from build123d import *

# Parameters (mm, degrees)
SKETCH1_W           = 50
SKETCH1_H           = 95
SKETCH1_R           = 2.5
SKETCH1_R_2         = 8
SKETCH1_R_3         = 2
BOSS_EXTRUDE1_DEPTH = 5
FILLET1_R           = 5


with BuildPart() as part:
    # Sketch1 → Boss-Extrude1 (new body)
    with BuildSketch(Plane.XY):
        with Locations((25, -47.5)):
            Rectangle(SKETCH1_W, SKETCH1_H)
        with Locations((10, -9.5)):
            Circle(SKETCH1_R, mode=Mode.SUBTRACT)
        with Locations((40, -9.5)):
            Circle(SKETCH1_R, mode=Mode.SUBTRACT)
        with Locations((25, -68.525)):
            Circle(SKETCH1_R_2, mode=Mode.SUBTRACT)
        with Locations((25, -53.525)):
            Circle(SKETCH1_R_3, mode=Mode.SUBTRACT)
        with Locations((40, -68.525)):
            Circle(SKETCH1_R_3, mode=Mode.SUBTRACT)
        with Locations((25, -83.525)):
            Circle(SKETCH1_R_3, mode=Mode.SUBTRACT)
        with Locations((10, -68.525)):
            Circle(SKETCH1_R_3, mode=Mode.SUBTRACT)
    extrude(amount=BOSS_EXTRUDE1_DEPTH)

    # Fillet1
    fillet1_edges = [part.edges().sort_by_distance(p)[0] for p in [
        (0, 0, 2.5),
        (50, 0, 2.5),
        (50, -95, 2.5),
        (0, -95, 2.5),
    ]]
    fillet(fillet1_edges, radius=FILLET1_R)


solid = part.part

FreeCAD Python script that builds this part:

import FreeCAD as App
import Part
import Sketcher


def edges_at(feature, points):
    """Names of the edges that pass closest to the given points."""
    edges = feature.Shape.Edges
    near = lambda p: min(range(len(edges)), key=lambda i: edges[i].distToShape(Part.Vertex(*p))[0])
    return sorted({f"Edge{near(p) + 1}" for p in points})


def add_polygon(sketch, points):
    """Adds a closed chain of lines whose ends are joined by coincident constraints."""
    first, n = sketch.GeometryCount, len(points)
    for a, b in zip(points, points[1:] + points[:1]):
        sketch.addGeometry(Part.LineSegment(App.Vector(*a, 0), App.Vector(*b, 0)), False)
    for i in range(n):
        sketch.addConstraint(Sketcher.Constraint("Coincident", first + i, 2, first + (i + 1) % n, 1))

doc = App.newDocument("Part")
params = doc.addObject("Spreadsheet::Sheet", "Params")
for row, (alias, value) in enumerate([
    ("sketch1_diameter", "4 mm"),
    ("sketch1_diameter2", "16 mm"),
    ("sketch1_diameter3", "5 mm"),
    ("sketch1_width", "50 mm"),
    ("sketch1_height", "95 mm"),
    ("pad1_length", "5 mm"),
    ("fillet_radius", "5 mm"),
], start=1):
    params.set(f"A{row}", alias)
    params.set(f"B{row}", "=" + value)
    params.setAlias(f"B{row}", alias)

body = doc.addObject("PartDesign::Body", "Body")

# Sketch on XY plane
sketch1 = body.newObject("Sketcher::SketchObject", "Sketch")
sketch1.AttachmentSupport = (doc.getObject("XY_Plane"), [""])
sketch1.MapMode = "FlatFace"
add_polygon(sketch1, [(0, 0), (0, -95), (50, -95), (50, 0)])  # lines 0-3
sketch1.addGeometry(Part.Circle(App.Vector(10, -68.5, 0), App.Vector(0, 0, 1), 2), False)  # 4
sketch1.addGeometry(Part.Circle(App.Vector(25, -83.5, 0), App.Vector(0, 0, 1), 2), False)  # 5
sketch1.addGeometry(Part.Circle(App.Vector(25, -68.5, 0), App.Vector(0, 0, 1), 8), False)  # 6
sketch1.addGeometry(Part.Circle(App.Vector(40, -68.5, 0), App.Vector(0, 0, 1), 2), False)  # 7
sketch1.addGeometry(Part.Circle(App.Vector(25, -53.5, 0), App.Vector(0, 0, 1), 2), False)  # 8
sketch1.addGeometry(Part.Circle(App.Vector(10, -9.5, 0), App.Vector(0, 0, 1), 2.5), False)  # 9
sketch1.addGeometry(Part.Circle(App.Vector(40, -9.5, 0), App.Vector(0, 0, 1), 2.5), False)  # 10
sketch1.addConstraint([
    Sketcher.Constraint("Vertical", 0),
    Sketcher.Constraint("Horizontal", 1),
    Sketcher.Constraint("Vertical", 2),
    Sketcher.Constraint("Horizontal", 3),
    Sketcher.Constraint("Coincident", 3, 2, -1, 1),
    Sketcher.Constraint("Equal", 4, 5),
    Sketcher.Constraint("Equal", 5, 7),
    Sketcher.Constraint("Equal", 7, 8),
    Sketcher.Constraint("Equal", 9, 10),
    Sketcher.Constraint("Horizontal", 4, 3, 6, 3),
    Sketcher.Constraint("Horizontal", 6, 3, 7, 3),
    Sketcher.Constraint("Horizontal", 9, 3, 10, 3),
    Sketcher.Constraint("Vertical", 5, 3, 6, 3),
    Sketcher.Constraint("Vertical", 6, 3, 8, 3),
    Sketcher.Constraint("Vertical", 4, 3, 9, 3),
    Sketcher.Constraint("Vertical", 7, 3, 10, 3),
    Sketcher.Constraint("Diameter", 4, 4.0),
    Sketcher.Constraint("Diameter", 6, 16.0),
    Sketcher.Constraint("Diameter", 9, 5.0),
    Sketcher.Constraint("DistanceX", 1, 1, 1, 2, 50.0),
    Sketcher.Constraint("DistanceY", 0, 2, 0, 1, 95.0),
    Sketcher.Constraint("DistanceX", -1, 1, 4, 3, 10.0),
    Sketcher.Constraint("DistanceX", -1, 1, 5, 3, 25.0),
    Sketcher.Constraint("DistanceX", -1, 1, 7, 3, 40.0),
    Sketcher.Constraint("DistanceY", 5, 3, 4, 3, 15.0),
    Sketcher.Constraint("DistanceY", 6, 3, 8, 3, 15.0),
    Sketcher.Constraint("DistanceY", 9, 3, -1, 1, 9.5),
    Sketcher.Constraint("DistanceY", 4, 3, -1, 1, 68.525),
])
sketch1.setExpression("Constraints[20]", "Params.sketch1_diameter")
sketch1.setExpression("Constraints[21]", "Params.sketch1_diameter2")
sketch1.setExpression("Constraints[22]", "Params.sketch1_diameter3")
sketch1.setExpression("Constraints[23]", "Params.sketch1_width")
sketch1.setExpression("Constraints[24]", "Params.sketch1_height")
pad1 = body.newObject("PartDesign::Pad", "Pad")
pad1.Profile = sketch1
pad1.setExpression("Length", "Params.pad1_length")
doc.recompute()

fillet = body.newObject("PartDesign::Fillet", "Fillet")
fillet.Base = (pad1, edges_at(pad1, [
    (0, 0, 2.5),
    (50, 0, 2.5),
    (50, -95, 2.5),
    (0, -95, 2.5),
]))
fillet.setExpression("Radius", "Params.fillet_radius")

doc.recompute()
